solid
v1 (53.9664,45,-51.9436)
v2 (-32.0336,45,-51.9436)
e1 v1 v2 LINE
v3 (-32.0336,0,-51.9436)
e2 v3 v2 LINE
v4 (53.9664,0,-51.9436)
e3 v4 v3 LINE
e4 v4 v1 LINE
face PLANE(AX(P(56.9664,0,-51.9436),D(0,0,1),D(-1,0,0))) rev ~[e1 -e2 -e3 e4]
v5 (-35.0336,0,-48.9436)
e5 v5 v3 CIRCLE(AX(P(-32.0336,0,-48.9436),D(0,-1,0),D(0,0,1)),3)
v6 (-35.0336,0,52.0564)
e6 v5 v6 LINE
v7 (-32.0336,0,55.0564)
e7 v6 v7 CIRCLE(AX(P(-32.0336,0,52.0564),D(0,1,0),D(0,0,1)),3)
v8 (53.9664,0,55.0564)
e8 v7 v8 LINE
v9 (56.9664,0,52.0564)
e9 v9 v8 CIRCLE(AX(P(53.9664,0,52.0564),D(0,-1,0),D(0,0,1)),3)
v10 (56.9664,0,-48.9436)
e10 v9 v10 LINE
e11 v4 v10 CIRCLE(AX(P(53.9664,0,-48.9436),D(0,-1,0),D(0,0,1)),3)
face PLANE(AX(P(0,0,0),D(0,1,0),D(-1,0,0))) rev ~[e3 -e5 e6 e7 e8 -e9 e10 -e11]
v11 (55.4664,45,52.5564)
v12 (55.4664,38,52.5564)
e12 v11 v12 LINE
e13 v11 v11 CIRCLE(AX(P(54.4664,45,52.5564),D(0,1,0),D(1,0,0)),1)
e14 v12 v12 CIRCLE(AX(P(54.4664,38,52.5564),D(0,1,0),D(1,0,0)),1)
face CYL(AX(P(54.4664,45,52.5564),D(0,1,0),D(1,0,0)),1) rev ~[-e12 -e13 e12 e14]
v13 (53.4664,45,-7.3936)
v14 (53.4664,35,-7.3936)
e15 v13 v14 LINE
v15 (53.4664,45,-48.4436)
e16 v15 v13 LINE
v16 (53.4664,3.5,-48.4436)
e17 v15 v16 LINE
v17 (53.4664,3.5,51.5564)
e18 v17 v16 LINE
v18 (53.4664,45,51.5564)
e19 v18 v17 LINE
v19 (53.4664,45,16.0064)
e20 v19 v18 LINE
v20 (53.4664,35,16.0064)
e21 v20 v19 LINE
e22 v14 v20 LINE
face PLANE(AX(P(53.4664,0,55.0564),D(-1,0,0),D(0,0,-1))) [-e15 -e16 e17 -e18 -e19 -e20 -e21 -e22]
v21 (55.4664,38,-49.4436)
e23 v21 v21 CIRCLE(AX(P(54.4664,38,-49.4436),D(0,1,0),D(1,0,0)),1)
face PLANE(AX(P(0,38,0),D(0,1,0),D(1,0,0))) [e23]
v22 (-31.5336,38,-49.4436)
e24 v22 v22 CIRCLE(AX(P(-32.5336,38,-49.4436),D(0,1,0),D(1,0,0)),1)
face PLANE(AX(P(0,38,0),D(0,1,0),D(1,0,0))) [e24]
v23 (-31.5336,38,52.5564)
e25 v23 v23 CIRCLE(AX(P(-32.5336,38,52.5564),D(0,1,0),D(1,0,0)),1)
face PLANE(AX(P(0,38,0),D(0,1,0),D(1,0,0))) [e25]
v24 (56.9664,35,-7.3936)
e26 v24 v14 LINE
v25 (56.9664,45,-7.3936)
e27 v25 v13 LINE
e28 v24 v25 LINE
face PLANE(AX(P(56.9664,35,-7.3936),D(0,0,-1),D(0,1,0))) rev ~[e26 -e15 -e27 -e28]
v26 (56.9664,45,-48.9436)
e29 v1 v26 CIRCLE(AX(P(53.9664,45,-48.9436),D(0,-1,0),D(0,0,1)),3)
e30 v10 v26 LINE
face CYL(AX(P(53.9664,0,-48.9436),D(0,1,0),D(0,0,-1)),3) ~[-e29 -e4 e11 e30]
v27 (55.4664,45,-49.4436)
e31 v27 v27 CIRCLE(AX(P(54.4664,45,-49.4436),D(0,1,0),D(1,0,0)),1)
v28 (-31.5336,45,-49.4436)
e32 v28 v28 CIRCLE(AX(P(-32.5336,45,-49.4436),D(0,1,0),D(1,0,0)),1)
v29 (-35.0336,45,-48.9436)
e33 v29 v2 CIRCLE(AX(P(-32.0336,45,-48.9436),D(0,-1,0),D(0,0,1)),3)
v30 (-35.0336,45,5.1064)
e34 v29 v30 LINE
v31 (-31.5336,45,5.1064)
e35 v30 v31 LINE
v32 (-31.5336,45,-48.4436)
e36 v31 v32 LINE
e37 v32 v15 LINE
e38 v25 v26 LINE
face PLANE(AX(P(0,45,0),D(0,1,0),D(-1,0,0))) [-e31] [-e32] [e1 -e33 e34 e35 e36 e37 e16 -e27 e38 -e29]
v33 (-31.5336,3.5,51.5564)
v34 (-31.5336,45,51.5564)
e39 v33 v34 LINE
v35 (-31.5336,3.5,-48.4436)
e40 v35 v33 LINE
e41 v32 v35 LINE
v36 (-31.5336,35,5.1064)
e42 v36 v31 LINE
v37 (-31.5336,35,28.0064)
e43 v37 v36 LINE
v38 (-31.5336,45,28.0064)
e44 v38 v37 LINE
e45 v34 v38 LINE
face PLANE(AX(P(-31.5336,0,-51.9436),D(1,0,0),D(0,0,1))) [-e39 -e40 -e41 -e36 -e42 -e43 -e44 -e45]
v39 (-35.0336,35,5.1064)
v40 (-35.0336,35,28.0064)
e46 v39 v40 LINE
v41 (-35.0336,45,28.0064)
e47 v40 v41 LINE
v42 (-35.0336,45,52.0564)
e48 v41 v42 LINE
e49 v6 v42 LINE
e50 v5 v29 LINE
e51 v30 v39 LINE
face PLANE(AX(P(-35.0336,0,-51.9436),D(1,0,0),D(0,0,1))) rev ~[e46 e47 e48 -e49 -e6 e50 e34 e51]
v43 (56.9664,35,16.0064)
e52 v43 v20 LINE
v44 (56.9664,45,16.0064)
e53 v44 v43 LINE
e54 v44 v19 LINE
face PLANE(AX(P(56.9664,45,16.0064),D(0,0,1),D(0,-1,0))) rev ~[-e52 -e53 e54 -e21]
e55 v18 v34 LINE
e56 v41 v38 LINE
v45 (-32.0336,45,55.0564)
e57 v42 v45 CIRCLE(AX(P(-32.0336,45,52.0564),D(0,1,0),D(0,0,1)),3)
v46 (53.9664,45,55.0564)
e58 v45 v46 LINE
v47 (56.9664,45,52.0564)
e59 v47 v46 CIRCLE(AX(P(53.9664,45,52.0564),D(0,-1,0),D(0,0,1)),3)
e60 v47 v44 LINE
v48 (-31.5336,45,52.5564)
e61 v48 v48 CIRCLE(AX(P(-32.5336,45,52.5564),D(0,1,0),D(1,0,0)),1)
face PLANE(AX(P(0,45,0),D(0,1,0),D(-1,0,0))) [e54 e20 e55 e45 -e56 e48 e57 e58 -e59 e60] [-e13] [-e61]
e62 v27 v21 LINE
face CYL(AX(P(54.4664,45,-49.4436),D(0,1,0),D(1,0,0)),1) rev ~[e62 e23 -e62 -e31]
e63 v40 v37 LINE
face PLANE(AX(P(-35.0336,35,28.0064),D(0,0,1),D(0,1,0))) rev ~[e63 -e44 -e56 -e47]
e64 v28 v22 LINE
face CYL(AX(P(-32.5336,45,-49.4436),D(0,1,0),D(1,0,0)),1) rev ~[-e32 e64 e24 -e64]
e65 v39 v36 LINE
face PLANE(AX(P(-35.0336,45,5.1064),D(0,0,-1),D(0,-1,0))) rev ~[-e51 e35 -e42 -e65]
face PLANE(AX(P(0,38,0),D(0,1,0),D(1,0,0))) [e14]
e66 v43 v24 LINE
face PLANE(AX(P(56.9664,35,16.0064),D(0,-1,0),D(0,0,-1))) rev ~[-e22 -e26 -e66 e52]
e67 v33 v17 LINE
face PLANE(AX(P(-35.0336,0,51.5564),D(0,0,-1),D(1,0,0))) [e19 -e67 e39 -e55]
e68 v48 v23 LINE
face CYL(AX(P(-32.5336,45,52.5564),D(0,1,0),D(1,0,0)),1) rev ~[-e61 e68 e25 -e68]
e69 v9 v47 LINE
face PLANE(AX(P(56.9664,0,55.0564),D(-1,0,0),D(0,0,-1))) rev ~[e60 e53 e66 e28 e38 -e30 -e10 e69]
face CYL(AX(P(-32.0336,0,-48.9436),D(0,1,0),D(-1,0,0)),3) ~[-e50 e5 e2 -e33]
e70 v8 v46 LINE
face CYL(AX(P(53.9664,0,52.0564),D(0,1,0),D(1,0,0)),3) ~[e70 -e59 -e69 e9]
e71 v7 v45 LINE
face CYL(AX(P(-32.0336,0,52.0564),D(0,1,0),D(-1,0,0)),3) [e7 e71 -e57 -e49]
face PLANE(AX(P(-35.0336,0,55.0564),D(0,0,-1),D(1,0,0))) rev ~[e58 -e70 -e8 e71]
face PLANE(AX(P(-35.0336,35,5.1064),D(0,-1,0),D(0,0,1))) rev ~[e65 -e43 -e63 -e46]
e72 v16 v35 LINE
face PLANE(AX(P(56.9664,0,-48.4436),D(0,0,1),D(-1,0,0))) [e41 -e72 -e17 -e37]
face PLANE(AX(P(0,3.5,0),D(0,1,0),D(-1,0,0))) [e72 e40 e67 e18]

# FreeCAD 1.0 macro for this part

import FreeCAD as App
import Part
import Sketcher

V = App.Vector
Q = App.Units.Quantity


def edges_at(feature, points):
    """Names of the edges that pass closest to the given points."""
    edges = feature.Shape.Edges
    near = lambda p: min(range(len(edges)), key=lambda i: edges[i].distToShape(Part.Vertex(*p))[0])
    return sorted({f"Edge{near(p) + 1}" for p in points})


def faces_at(feature, points):
    """Names of the faces that lie closest to the given points."""
    faces = feature.Shape.Faces
    near = lambda p: min(range(len(faces)), key=lambda i: faces[i].distToShape(Part.Vertex(*p))[0])
    return sorted({f"Face{near(p) + 1}" for p in points})

doc = App.newDocument("Part")
body = doc.addObject("PartDesign::Body", "Body")

sketch1 = body.newObject("Sketcher::SketchObject", "Sketch")
sketch1.AttachmentSupport = (doc.getObject("XZ_Plane"), [""])
sketch1.MapMode = "FlatFace"
sketch1.addGeometry([
    Part.LineSegment(V(-35.0336, -51.9436, 0), V(-35.0336, 55.0564, 0)),
    Part.LineSegment(V(-35.0336, 55.0564, 0), V(56.9664, 55.0564, 0)),
    Part.LineSegment(V(56.9664, 55.0564, 0), V(56.9664, -51.9436, 0)),
    Part.LineSegment(V(56.9664, -51.9436, 0), V(-35.0336, -51.9436, 0)),
], False)
sketch1.addConstraint([
    Sketcher.Constraint("Coincident", 0, 2, 1, 1),
    Sketcher.Constraint("Coincident", 1, 2, 2, 1),
    Sketcher.Constraint("Coincident", 2, 2, 3, 1),
    Sketcher.Constraint("Coincident", 3, 2, 0, 1),
    Sketcher.Constraint("Vertical", 0),
    Sketcher.Constraint("Horizontal", 1),
    Sketcher.Constraint("Vertical", 2),
    Sketcher.Constraint("Horizontal", 3),
    Sketcher.Constraint("DistanceX", 1, 1, 1, 2, Q("92 mm")),
    Sketcher.Constraint("DistanceY", 0, 1, 0, 2, Q("107 mm")),
    Sketcher.Constraint("DistanceX", 0, 2, -1, 1, Q("35.0336 mm")),
    Sketcher.Constraint("DistanceY", -1, 1, 0, 2, Q("55.0564 mm")),
])
pad1 = body.newObject("PartDesign::Pad", "Pad")
pad1.Profile = sketch1
pad1.Length = 45
pad1.Reversed = True
doc.recompute()

thickness = body.newObject("PartDesign::Thickness", "Thickness")
thickness.Base = (pad1, faces_at(pad1, [(-4.367, 45, -16.277)]))
thickness.Value = 3.5
thickness.Reversed = True
thickness.Join = "Intersection"
doc.recompute()

fillet = body.newObject("PartDesign::Fillet", "Fillet")
fillet.Base = (thickness, edges_at(thickness, [
    (56.966, 22.5, 55.056),
    (-35.034, 22.5, 55.056),
    (56.966, 22.5, -51.944),
    (-35.034, 22.5, -51.944),
]))
fillet.Radius = 3

sketch2 = body.newObject("Sketcher::SketchObject", "Sketch001")
sketch2.AttachmentSupport = (doc.getObject("XZ_Plane"), [""])
sketch2.MapMode = "FlatFace"
sketch2.AttachmentOffset = App.Placement(V(0, 0, -45), App.Rotation())
sketch2.addGeometry([
    Part.Circle(V(54.4664, 52.5564, 0), V(0, 0, 1), 1),
    Part.Circle(V(-32.5336, 52.5564, 0), V(0, 0, 1), 1),
    Part.Circle(V(54.4664, -49.4436, 0), V(0, 0, 1), 1),
    Part.Circle(V(-32.5336, -49.4436, 0), V(0, 0, 1), 1),
], False)
sketch2.addConstraint([
    Sketcher.Constraint("Equal", 0, 1),
    Sketcher.Constraint("Equal", 1, 2),
    Sketcher.Constraint("Equal", 2, 3),
    Sketcher.Constraint("Horizontal", 0, 3, 1, 3),
    Sketcher.Constraint("Horizontal", 2, 3, 3, 3),
    Sketcher.Constraint("Vertical", 0, 3, 2, 3),
    Sketcher.Constraint("Vertical", 1, 3, 3, 3),
    Sketcher.Constraint("Diameter", 0, Q("2 mm")),
    Sketcher.Constraint("DistanceX", 1, 3, 0, 3, Q("87 mm")),
    Sketcher.Constraint("DistanceY", 2, 3, 0, 3, Q("102 mm")),
    Sketcher.Constraint("DistanceX", -1, 1, 0, 3, Q("54.4664 mm")),
    Sketcher.Constraint("DistanceY", -1, 1, 0, 3, Q("52.5564 mm")),
])
pocket1 = body.newObject("PartDesign::Pocket", "Pocket")
pocket1.Profile = sketch2
pocket1.Length = 7
pocket1.Reversed = True

sketch3 = body.newObject("Sketcher::SketchObject", "Sketch002")
sketch3.AttachmentSupport = (doc.getObject("YZ_Plane"), [""])
sketch3.MapMode = "FlatFace"
sketch3.AttachmentOffset = App.Placement(V(0, 0, 56.9664), App.Rotation())
sketch3.addGeometry([
    Part.LineSegment(V(35, -7.3936, 0), V(45, -7.3936, 0)),
    Part.LineSegment(V(45, -7.3936, 0), V(45, 16.0064, 0)),
    Part.LineSegment(V(45, 16.0064, 0), V(35, 16.0064, 0)),
    Part.LineSegment(V(35, 16.0064, 0), V(35, -7.3936, 0)),
], False)
sketch3.addConstraint([
    Sketcher.Constraint("Coincident", 0, 2, 1, 1),
    Sketcher.Constraint("Coincident", 1, 2, 2, 1),
    Sketcher.Constraint("Coincident", 2, 2, 3, 1),
    Sketcher.Constraint("Coincident", 3, 2, 0, 1),
    Sketcher.Constraint("Horizontal", 0),
    Sketcher.Constraint("Vertical", 1),
    Sketcher.Constraint("Horizontal", 2),
    Sketcher.Constraint("Vertical", 3),
    Sketcher.Constraint("DistanceX", 0, 1, 0, 2, Q("10 mm")),
    Sketcher.Constraint("DistanceY", 1, 1, 1, 2, Q("23.4 mm")),
    Sketcher.Constraint("DistanceX", -1, 1, 0, 2, Q("45 mm")),
    Sketcher.Constraint("DistanceY", 0, 2, -1, 1, Q("7.3936 mm")),
])
pocket2 = body.newObject("PartDesign::Pocket", "Pocket001")
pocket2.Profile = sketch3
pocket2.Length = 8

sketch4 = body.newObject("Sketcher::SketchObject", "Sketch003")
sketch4.AttachmentSupport = (doc.getObject("YZ_Plane"), [""])
sketch4.MapMode = "FlatFace"
sketch4.AttachmentOffset = App.Placement(V(0, 0, -35.0336), App.Rotation())
sketch4.addGeometry([
    Part.LineSegment(V(45, 5.1064, 0), V(35, 5.1064, 0)),
    Part.LineSegment(V(35, 5.1064, 0), V(35, 28.0064, 0)),
    Part.LineSegment(V(35, 28.0064, 0), V(45, 28.0064, 0)),
    Part.LineSegment(V(45, 28.0064, 0), V(45, 5.1064, 0)),
], False)
sketch4.addConstraint([
    Sketcher.Constraint("Coincident", 0, 2, 1, 1),
    Sketcher.Constraint("Coincident", 1, 2, 2, 1),
    Sketcher.Constraint("Coincident", 2, 2, 3, 1),
    Sketcher.Constraint("Coincident", 3, 2, 0, 1),
    Sketcher.Constraint("Horizontal", 0),
    Sketcher.Constraint("Vertical", 1),
    Sketcher.Constraint("Horizontal", 2),
    Sketcher.Constraint("Vertical", 3),
    Sketcher.Constraint("DistanceX", 0, 2, 0, 1, Q("10 mm")),
    Sketcher.Constraint("DistanceY", 1, 1, 1, 2, Q("22.9 mm")),
    Sketcher.Constraint("DistanceX", -1, 1, 0, 2, Q("35 mm")),
    Sketcher.Constraint("DistanceY", -1, 1, 0, 2, Q("5.1064 mm")),
])
pocket3 = body.newObject("PartDesign::Pocket", "Pocket002")
pocket3.Profile = sketch4
pocket3.Length = 8
pocket3.Reversed = True

doc.recompute()
